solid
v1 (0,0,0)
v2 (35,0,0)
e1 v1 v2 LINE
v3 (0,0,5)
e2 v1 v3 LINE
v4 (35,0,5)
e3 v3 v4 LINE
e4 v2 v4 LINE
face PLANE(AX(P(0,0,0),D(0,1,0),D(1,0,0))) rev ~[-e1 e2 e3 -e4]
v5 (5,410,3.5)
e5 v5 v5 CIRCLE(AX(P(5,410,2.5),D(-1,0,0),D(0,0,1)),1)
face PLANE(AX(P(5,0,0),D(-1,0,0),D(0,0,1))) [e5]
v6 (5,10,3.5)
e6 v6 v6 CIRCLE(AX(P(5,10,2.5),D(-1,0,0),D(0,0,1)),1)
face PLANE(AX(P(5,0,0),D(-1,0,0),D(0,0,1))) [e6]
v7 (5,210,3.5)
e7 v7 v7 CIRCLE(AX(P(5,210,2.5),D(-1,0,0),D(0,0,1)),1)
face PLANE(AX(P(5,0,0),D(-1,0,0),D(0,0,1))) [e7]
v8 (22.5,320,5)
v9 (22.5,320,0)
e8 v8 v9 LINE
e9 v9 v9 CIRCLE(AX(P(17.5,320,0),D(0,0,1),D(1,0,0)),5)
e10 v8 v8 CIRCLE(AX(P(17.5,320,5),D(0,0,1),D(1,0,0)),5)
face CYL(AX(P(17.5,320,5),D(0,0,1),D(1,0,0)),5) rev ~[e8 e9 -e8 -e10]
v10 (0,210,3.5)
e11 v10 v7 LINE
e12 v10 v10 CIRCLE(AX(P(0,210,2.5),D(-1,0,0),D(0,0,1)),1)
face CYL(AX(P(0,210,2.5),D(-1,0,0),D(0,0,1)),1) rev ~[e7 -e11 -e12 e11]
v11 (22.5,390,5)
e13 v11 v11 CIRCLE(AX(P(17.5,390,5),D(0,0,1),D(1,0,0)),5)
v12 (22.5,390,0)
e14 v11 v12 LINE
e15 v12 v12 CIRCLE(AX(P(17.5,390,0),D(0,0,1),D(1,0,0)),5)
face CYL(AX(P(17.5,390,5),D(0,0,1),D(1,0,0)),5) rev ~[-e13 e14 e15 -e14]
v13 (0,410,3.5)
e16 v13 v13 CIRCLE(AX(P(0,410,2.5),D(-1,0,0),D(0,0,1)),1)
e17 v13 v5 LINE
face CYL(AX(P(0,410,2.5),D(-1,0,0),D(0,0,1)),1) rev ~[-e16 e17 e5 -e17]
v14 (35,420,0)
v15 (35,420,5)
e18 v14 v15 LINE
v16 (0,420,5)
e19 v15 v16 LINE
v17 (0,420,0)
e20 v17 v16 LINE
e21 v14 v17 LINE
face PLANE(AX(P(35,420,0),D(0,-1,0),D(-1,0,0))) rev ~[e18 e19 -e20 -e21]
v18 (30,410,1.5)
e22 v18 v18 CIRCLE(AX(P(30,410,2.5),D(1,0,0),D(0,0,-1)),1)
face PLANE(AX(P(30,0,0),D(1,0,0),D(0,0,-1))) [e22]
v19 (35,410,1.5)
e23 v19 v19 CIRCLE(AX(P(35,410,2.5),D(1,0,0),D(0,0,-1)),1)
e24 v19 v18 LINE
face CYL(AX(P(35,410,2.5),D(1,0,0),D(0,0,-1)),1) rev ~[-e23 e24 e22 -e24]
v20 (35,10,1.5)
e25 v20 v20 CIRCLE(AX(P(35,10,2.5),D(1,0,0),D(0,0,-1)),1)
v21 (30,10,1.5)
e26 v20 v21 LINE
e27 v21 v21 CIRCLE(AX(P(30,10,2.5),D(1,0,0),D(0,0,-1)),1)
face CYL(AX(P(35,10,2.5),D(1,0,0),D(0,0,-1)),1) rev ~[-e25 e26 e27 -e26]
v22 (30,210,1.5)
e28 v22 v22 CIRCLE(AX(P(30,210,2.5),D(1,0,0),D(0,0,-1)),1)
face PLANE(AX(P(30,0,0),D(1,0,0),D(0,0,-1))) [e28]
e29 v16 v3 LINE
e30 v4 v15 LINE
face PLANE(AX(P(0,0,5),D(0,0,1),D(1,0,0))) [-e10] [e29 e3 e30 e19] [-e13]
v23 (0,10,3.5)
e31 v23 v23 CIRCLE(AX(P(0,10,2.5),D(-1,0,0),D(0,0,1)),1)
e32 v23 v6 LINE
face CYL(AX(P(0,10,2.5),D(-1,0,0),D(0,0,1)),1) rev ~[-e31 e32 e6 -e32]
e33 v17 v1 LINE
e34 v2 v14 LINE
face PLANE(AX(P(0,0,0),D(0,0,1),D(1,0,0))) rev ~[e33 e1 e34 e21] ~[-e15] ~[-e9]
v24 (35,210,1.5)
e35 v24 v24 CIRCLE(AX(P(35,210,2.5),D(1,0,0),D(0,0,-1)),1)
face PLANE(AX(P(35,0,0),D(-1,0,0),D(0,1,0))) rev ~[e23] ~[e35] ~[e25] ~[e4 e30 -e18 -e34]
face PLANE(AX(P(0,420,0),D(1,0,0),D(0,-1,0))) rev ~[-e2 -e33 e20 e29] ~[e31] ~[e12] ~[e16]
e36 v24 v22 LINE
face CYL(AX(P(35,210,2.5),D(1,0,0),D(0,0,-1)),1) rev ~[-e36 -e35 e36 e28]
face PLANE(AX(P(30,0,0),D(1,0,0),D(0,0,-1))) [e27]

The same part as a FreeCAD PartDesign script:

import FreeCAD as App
import Part
import Sketcher

V = App.Vector


def add_polygon(sketch, points):
    """Adds a closed chain of lines whose ends are joined by coincident constraints."""
    first, n = sketch.GeometryCount, len(points)
    for a, b in zip(points, points[1:] + points[:1]):
        sketch.addGeometry(Part.LineSegment(App.Vector(*a, 0), App.Vector(*b, 0)), False)
    for i in range(n):
        sketch.addConstraint(Sketcher.Constraint("Coincident", first + i, 2, first + (i + 1) % n, 1))

doc = App.newDocument("Part")
body = doc.addObject("PartDesign::Body", "Body")

# Sketch on XY plane
sketch1 = body.newObject("Sketcher::SketchObject", "Sketch")
sketch1.AttachmentSupport = (doc.getObject("XY_Plane"), [""])
sketch1.MapMode = "FlatFace"
add_polygon(sketch1, [(0, 420), (0, 0), (35, 0), (35, 420)])  # lines 0-3
sketch1.addConstraint(Sketcher.Constraint("Vertical", 0))
sketch1.addConstraint(Sketcher.Constraint("Horizontal", 1))
sketch1.addConstraint(Sketcher.Constraint("Vertical", 2))
sketch1.addConstraint(Sketcher.Constraint("Horizontal", 3))
sketch1.addConstraint(Sketcher.Constraint("Coincident", 0, 2, -1, 1))
sketch1.addConstraint(Sketcher.Constraint("DistanceX", 1, 1, 1, 2, 35.0))
sketch1.addConstraint(Sketcher.Constraint("DistanceY", 0, 2, 0, 1, 420.0))
pad1 = body.newObject("PartDesign::Pad", "Pad")
pad1.Profile = sketch1
pad1.Length = 5

# Sketch on YZ plane
sketch2 = body.newObject("Sketcher::SketchObject", "Sketch001")
sketch2.AttachmentSupport = (doc.getObject("YZ_Plane"), [""])
sketch2.MapMode = "FlatFace"
sketch2.AttachmentOffset = App.Placement(V(0, 0, 35), App.Rotation())
sketch2.addGeometry(Part.Circle(V(410, 2.5, 0), V(0, 0, 1), 1), False)
sketch2.addGeometry(Part.Circle(V(210, 2.5, 0), V(0, 0, 1), 1), False)
sketch2.addGeometry(Part.Circle(V(10, 2.5, 0), V(0, 0, 1), 1), False)
sketch2.addConstraint(Sketcher.Constraint("Equal", 0, 1))
sketch2.addConstraint(Sketcher.Constraint("Equal", 1, 2))
sketch2.addConstraint(Sketcher.Constraint("Horizontal", 0, 3, 1, 3))
sketch2.addConstraint(Sketcher.Constraint("Horizontal", 1, 3, 2, 3))
sketch2.addConstraint(Sketcher.Constraint("Diameter", 0, 2.0))
sketch2.addConstraint(Sketcher.Constraint("DistanceX", -1, 1, 0, 3, 410.0))
sketch2.addConstraint(Sketcher.Constraint("DistanceX", -1, 1, 1, 3, 210.0))
sketch2.addConstraint(Sketcher.Constraint("DistanceX", -1, 1, 2, 3, 10.0))
sketch2.addConstraint(Sketcher.Constraint("DistanceY", -1, 1, 0, 3, 2.5))
pocket1 = body.newObject("PartDesign::Pocket", "Pocket")
pocket1.Profile = sketch2
pocket1.Length = 5

# Sketch on YZ plane
sketch3 = body.newObject("Sketcher::SketchObject", "Sketch002")
sketch3.AttachmentSupport = (doc.getObject("YZ_Plane"), [""])
sketch3.MapMode = "FlatFace"
sketch3.addGeometry(Part.Circle(V(10, 2.5, 0), V(0, 0, 1), 1), False)
sketch3.addGeometry(Part.Circle(V(210, 2.5, 0), V(0, 0, 1), 1), False)
sketch3.addGeometry(Part.Circle(V(410, 2.5, 0), V(0, 0, 1), 1), False)
sketch3.addConstraint(Sketcher.Constraint("Equal", 0, 1))
sketch3.addConstraint(Sketcher.Constraint("Equal", 1, 2))
sketch3.addConstraint(Sketcher.Constraint("Horizontal", 0, 3, 1, 3))
sketch3.addConstraint(Sketcher.Constraint("Horizontal", 1, 3, 2, 3))
sketch3.addConstraint(Sketcher.Constraint("Diameter", 0, 2.0))
sketch3.addConstraint(Sketcher.Constraint("DistanceX", -1, 1, 0, 3, 10.0))
sketch3.addConstraint(Sketcher.Constraint("DistanceX", -1, 1, 1, 3, 210.0))
sketch3.addConstraint(Sketcher.Constraint("DistanceX", -1, 1, 2, 3, 410.0))
sketch3.addConstraint(Sketcher.Constraint("DistanceY", -1, 1, 0, 3, 2.5))
pocket2 = body.newObject("PartDesign::Pocket", "Pocket001")
pocket2.Profile = sketch3
pocket2.Length = 5
pocket2.Reversed = True

# Sketch on XY plane
sketch4 = body.newObject("Sketcher::SketchObject", "Sketch003")
sketch4.AttachmentSupport = (doc.getObject("XY_Plane"), [""])
sketch4.MapMode = "FlatFace"
sketch4.AttachmentOffset = App.Placement(V(0, 0, 5), App.Rotation())
sketch4.addGeometry(Part.Circle(V(18, 320, 0), V(0, 0, 1), 5), False)
sketch4.addGeometry(Part.Circle(V(18, 390, 0), V(0, 0, 1), 5), False)
sketch4.addConstraint(Sketcher.Constraint("Equal", 0, 1))
sketch4.addConstraint(Sketcher.Constraint("Vertical", 0, 3, 1, 3))
sketch4.addConstraint(Sketcher.Constraint("Diameter", 0, 10.0))
sketch4.addConstraint(Sketcher.Constraint("DistanceY", 0, 3, 1, 3, 70.0))
sketch4.addConstraint(Sketcher.Constraint("DistanceX", -1, 1, 0, 3, 17.5))
sketch4.addConstraint(Sketcher.Constraint("DistanceY", -1, 1, 0, 3, 320.0))
pocket3 = body.newObject("PartDesign::Pocket", "Pocket002")
pocket3.Profile = sketch4
pocket3.Length = 35

doc.recompute()
